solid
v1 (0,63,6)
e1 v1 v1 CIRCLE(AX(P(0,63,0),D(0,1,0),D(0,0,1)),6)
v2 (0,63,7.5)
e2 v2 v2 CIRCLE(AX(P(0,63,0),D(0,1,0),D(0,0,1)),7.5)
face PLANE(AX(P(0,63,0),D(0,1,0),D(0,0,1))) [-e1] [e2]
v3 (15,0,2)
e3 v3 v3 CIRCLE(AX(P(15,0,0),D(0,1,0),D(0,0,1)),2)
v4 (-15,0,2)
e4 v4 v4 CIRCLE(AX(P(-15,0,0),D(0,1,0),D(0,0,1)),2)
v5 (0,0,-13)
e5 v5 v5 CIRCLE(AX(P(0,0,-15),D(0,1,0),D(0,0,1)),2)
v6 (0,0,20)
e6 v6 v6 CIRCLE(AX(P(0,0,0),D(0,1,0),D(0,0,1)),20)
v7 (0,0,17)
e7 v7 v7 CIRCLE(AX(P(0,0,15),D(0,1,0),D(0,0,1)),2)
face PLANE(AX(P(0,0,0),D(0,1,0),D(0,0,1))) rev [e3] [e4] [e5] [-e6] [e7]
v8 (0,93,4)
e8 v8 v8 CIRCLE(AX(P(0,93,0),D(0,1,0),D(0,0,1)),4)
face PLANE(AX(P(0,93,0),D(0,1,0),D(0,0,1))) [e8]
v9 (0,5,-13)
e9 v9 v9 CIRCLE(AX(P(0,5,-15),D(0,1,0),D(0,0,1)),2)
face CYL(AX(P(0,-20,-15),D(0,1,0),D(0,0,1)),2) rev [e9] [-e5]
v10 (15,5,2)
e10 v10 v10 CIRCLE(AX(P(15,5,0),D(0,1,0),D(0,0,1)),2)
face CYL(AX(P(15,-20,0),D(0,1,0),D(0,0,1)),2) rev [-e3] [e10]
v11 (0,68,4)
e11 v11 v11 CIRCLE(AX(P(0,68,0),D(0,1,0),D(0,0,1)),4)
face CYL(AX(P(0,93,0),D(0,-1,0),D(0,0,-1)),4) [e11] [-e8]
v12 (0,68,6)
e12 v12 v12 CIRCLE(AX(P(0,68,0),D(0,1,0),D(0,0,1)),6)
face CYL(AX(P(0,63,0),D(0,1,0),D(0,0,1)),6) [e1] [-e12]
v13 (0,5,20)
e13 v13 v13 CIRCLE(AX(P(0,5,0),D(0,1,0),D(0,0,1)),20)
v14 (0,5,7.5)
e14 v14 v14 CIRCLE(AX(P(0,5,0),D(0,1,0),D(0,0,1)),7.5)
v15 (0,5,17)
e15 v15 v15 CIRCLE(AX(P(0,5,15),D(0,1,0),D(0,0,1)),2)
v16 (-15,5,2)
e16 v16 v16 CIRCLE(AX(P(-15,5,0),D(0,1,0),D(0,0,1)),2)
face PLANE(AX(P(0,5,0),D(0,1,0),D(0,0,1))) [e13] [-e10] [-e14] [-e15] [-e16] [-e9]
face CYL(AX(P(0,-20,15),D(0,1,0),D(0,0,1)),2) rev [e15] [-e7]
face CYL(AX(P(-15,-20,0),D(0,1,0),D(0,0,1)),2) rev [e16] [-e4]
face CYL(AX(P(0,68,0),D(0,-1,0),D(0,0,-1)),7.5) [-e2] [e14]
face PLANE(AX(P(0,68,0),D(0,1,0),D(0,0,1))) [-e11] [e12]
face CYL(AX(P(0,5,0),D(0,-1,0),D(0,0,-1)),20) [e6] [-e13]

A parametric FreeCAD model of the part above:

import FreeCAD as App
import Part
import Sketcher

doc = App.newDocument("Part")
body = doc.addObject("PartDesign::Body", "Body")

sketch1 = body.newObject("Sketcher::SketchObject", "Sketch")
sketch1.AttachmentSupport = (doc.getObject("XZ_Plane"), [""])
sketch1.MapMode = "FlatFace"
sketch1.addGeometry(Part.Circle(App.Vector(0, 0, 0), App.Vector(0, 0, 1), 20), False)
sketch1.addConstraint(Sketcher.Constraint("Coincident", 0, 3, -1, 1))
sketch1.addConstraint(Sketcher.Constraint("Diameter", 0, 40.0))
pad1 = body.newObject("PartDesign::Pad", "Pad")
pad1.Profile = sketch1
pad1.Length = 5
pad1.Reversed = True

sketch2 = body.newObject("Sketcher::SketchObject", "Sketch001")
sketch2.AttachmentSupport = (doc.getObject("XZ_Plane"), [""])
sketch2.MapMode = "FlatFace"
sketch2.AttachmentOffset = App.Placement(App.Vector(0, 0, -5), App.Rotation())
sketch2.addGeometry(Part.Circle(App.Vector(0, 0, 0), App.Vector(0, 0, 1), 7.5), False)
sketch2.addConstraint(Sketcher.Constraint("Coincident", 0, 3, -1, 1))
sketch2.addConstraint(Sketcher.Constraint("Diameter", 0, 15.0))
pad2 = body.newObject("PartDesign::Pad", "Pad001")
pad2.Profile = sketch2
pad2.Length = 63
pad2.Reversed = True

sketch3 = body.newObject("Sketcher::SketchObject", "Sketch002")
sketch3.AttachmentSupport = (doc.getObject("XZ_Plane"), [""])
sketch3.MapMode = "FlatFace"
sketch3.AttachmentOffset = App.Placement(App.Vector(0, 0, -68), App.Rotation())
sketch3.addGeometry(Part.Circle(App.Vector(0, 0, 0), App.Vector(0, 0, 1), 4), False)
sketch3.addConstraint(Sketcher.Constraint("Coincident", 0, 3, -1, 1))
sketch3.addConstraint(Sketcher.Constraint("Diameter", 0, 8.0))
pad3 = body.newObject("PartDesign::Pad", "Pad002")
pad3.Profile = sketch3
pad3.Length = 25
pad3.Reversed = True

sketch4 = body.newObject("Sketcher::SketchObject", "Sketch003")
sketch4.AttachmentSupport = (doc.getObject("XZ_Plane"), [""])
sketch4.MapMode = "FlatFace"
sketch4.AttachmentOffset = App.Placement(App.Vector(0, 0, -5), App.Rotation())
sketch4.addGeometry(Part.Circle(App.Vector(0, -15, 0), App.Vector(0, 0, 1), 2), False)
sketch4.addGeometry(Part.Circle(App.Vector(15, 0, 0), App.Vector(0, 0, 1), 2), False)
sketch4.addGeometry(Part.Circle(App.Vector(0, 15, 0), App.Vector(0, 0, 1), 2), False)
sketch4.addGeometry(Part.Circle(App.Vector(-15, 0, 0), App.Vector(0, 0, 1), 2), False)
sketch4.addConstraint(Sketcher.Constraint("Equal", 0, 1))
sketch4.addConstraint(Sketcher.Constraint("Equal", 1, 2))
sketch4.addConstraint(Sketcher.Constraint("Equal", 2, 3))
sketch4.addConstraint(Sketcher.Constraint("Symmetric", 0, 3, 2, 3, -1, 1))
sketch4.addConstraint(Sketcher.Constraint("Symmetric", 1, 3, 3, 3, -1, 1))
sketch4.addConstraint(Sketcher.Constraint("PointOnObject", 0, 3, -2))
sketch4.addConstraint(Sketcher.Constraint("PointOnObject", 1, 3, -1))
sketch4.addConstraint(Sketcher.Constraint("Diameter", 0, 4.0))
sketch4.addConstraint(Sketcher.Constraint("DistanceY", 0, 3, -1, 1, 15.0))
sketch4.addConstraint(Sketcher.Constraint("DistanceX", -1, 1, 1, 3, 15.0))
pocket1 = body.newObject("PartDesign::Pocket", "Pocket")
pocket1.Profile = sketch4
pocket1.Length = 25
pocket1.Reversed = True

sketch5 = body.newObject("Sketcher::SketchObject", "Sketch004")
sketch5.AttachmentSupport = (doc.getObject("XZ_Plane"), [""])
sketch5.MapMode = "FlatFace"
sketch5.AttachmentOffset = App.Placement(App.Vector(0, 0, -68), App.Rotation())
sketch5.addGeometry(Part.Circle(App.Vector(0, 0, 0), App.Vector(0, 0, 1), 7.5), False)
sketch5.addGeometry(Part.Circle(App.Vector(0, 0, 0), App.Vector(0, 0, 1), 6), False)
sketch5.addConstraint(Sketcher.Constraint("Coincident", 0, 3, -1, 1))
sketch5.addConstraint(Sketcher.Constraint("Coincident", 1, 3, -1, 1))
sketch5.addConstraint(Sketcher.Constraint("Diameter", 0, 15.0))
sketch5.addConstraint(Sketcher.Constraint("Diameter", 1, 12.0))
pocket2 = body.newObject("PartDesign::Pocket", "Pocket001")
pocket2.Profile = sketch5
pocket2.Length = 5
pocket2.Reversed = True

doc.recompute()
